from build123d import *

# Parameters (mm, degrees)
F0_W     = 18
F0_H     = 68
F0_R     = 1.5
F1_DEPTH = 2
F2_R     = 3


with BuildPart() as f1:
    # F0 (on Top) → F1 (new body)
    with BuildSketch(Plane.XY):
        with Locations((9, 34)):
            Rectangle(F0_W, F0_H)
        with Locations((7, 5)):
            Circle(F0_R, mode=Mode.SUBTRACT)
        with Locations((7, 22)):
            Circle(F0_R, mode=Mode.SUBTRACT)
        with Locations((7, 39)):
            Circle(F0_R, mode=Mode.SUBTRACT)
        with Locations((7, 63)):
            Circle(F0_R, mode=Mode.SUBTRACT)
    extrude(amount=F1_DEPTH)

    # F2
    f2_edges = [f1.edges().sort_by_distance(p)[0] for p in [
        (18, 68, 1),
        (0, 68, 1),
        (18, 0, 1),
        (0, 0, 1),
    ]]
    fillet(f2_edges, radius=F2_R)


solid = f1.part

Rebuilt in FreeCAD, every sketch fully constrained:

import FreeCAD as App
import Part
import Sketcher
from FreeCAD import Vector


def edges_at(feature, points):
    """Names of the edges that pass closest to the given points."""
    edges = feature.Shape.Edges
    near = lambda p: min(range(len(edges)), key=lambda i: edges[i].distToShape(Part.Vertex(*p))[0])
    return sorted({f"Edge{near(p) + 1}" for p in points})


def add_polygon(sketch, points):
    """Adds a closed chain of lines whose ends are joined by coincident constraints."""
    first, n = sketch.GeometryCount, len(points)
    for a, b in zip(points, points[1:] + points[:1]):
        sketch.addGeometry(Part.LineSegment(App.Vector(*a, 0), App.Vector(*b, 0)), False)
    for i in range(n):
        sketch.addConstraint(Sketcher.Constraint("Coincident", first + i, 2, first + (i + 1) % n, 1))

doc = App.newDocument("Part")
body = doc.addObject("PartDesign::Body", "Body")

sketch1 = doc.addObject("Sketcher::SketchObject", "Sketch")
body.addObject(sketch1)
sketch1.AttachmentSupport = (doc.XY_Plane, [""])
sketch1.MapMode = "FlatFace"
add_polygon(sketch1, [(0, 68), (0, 0), (18, 0), (18, 68)])
sketch1.addGeometry(Part.Circle(Vector(7, 5, 0), Vector(0, 0, 1), 1.5), False)
sketch1.addGeometry(Part.Circle(Vector(7, 22, 0), Vector(0, 0, 1), 1.5), False)
sketch1.addGeometry(Part.Circle(Vector(7, 39, 0), Vector(0, 0, 1), 1.5), False)
sketch1.addGeometry(Part.Circle(Vector(7, 63, 0), Vector(0, 0, 1), 1.5), False)
sketch1.addConstraint([
    Sketcher.Constraint("Vertical", 0),
    Sketcher.Constraint("Horizontal", 1),
    Sketcher.Constraint("Vertical", 2),
    Sketcher.Constraint("Horizontal", 3),
    Sketcher.Constraint("Coincident", 0, 2, -1, 1),
    Sketcher.Constraint("Equal", 4, 5),
    Sketcher.Constraint("Equal", 5, 6),
    Sketcher.Constraint("Equal", 6, 7),
    Sketcher.Constraint("Vertical", 4, 3, 5, 3),
    Sketcher.Constraint("Vertical", 5, 3, 6, 3),
    Sketcher.Constraint("Vertical", 6, 3, 7, 3),
    Sketcher.Constraint("Diameter", 4, 3.0),
    Sketcher.Constraint("DistanceX", 1, 1, 1, 2, 18.0),
    Sketcher.Constraint("DistanceY", 0, 2, 0, 1, 68.0),
    Sketcher.Constraint("DistanceX", -1, 1, 4, 3, 7.0),
    Sketcher.Constraint("DistanceY", -1, 1, 4, 3, 5.0),
    Sketcher.Constraint("DistanceY", -1, 1, 5, 3, 22.0),
    Sketcher.Constraint("DistanceY", -1, 1, 6, 3, 39.0),
    Sketcher.Constraint("DistanceY", -1, 1, 7, 3, 63.0),
])
pad1 = doc.addObject("PartDesign::Pad", "Pad")
body.addObject(pad1)
pad1.Profile = sketch1
pad1.Length = 2
doc.recompute()

fillet = doc.addObject("PartDesign::Fillet", "Fillet")
body.addObject(fillet)
fillet.Base = (pad1, edges_at(pad1, [
    (18, 68, 1),
    (0, 68, 1),
    (18, 0, 1),
    (0, 0, 1),
]))
fillet.Radius = 3

doc.recompute()
